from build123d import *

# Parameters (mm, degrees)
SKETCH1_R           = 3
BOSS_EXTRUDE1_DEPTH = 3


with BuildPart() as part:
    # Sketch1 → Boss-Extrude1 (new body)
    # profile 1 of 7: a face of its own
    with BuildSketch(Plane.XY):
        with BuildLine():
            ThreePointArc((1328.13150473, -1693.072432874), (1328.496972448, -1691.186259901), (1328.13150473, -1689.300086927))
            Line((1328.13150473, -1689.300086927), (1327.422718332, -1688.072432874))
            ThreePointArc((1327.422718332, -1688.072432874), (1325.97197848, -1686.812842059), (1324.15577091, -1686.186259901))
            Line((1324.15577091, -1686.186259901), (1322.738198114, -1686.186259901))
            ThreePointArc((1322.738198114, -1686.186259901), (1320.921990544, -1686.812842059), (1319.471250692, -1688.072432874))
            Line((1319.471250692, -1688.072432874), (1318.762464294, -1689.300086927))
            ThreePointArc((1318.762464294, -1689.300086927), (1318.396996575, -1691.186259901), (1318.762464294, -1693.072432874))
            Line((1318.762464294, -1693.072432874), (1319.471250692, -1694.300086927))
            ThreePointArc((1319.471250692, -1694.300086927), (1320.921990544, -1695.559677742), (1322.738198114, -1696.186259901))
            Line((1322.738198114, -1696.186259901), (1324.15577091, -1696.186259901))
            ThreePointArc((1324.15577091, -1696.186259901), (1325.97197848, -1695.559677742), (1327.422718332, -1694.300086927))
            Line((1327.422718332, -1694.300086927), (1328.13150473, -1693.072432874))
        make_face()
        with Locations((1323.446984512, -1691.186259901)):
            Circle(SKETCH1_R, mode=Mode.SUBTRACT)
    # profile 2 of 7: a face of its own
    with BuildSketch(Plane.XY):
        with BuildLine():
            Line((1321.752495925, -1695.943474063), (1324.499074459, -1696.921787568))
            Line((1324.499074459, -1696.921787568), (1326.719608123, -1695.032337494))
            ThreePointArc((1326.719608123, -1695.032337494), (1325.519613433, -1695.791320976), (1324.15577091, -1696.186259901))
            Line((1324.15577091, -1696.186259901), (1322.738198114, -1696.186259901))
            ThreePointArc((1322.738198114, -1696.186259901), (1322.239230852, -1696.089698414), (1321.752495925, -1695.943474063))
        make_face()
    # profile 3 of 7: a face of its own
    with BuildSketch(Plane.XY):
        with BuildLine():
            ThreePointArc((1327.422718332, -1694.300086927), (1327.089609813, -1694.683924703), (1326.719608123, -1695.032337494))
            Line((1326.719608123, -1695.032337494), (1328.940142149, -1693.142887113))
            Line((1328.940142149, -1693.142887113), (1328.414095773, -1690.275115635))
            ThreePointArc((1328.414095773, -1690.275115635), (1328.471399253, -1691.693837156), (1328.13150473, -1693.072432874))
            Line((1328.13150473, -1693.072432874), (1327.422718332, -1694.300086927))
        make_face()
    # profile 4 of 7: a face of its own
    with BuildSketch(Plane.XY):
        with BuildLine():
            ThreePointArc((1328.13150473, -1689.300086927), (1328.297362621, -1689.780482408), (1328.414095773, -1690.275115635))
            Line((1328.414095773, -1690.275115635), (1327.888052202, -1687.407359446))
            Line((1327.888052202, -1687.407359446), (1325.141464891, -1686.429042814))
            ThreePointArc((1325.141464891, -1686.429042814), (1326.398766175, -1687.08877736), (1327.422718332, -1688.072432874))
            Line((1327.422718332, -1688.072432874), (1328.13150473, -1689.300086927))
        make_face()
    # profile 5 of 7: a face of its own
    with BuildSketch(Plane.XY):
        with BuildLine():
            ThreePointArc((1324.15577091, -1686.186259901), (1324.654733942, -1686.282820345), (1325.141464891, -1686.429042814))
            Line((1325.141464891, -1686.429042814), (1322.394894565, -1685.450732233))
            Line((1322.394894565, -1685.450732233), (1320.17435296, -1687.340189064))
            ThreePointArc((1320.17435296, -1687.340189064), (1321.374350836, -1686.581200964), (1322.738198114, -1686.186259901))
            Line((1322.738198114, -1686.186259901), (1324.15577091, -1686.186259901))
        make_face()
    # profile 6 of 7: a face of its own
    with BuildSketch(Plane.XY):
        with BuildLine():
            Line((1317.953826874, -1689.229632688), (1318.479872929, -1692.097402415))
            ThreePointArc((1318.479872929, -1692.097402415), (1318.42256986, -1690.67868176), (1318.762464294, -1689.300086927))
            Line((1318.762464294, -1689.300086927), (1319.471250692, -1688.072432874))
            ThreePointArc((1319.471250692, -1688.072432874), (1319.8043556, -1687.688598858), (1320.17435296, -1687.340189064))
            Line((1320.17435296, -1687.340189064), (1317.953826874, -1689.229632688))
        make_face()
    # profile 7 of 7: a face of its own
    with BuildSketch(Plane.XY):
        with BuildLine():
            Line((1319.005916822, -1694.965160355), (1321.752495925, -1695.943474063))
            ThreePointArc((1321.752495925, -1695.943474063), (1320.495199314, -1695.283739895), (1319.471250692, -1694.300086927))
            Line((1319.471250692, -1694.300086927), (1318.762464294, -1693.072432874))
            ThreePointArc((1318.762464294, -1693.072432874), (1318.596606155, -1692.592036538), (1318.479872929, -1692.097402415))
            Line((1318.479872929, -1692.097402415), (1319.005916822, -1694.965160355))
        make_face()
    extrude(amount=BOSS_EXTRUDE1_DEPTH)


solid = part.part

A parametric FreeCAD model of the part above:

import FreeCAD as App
import Part
import Sketcher


def add_polygon(sketch, points):
    """Adds a closed chain of lines whose ends are joined by coincident constraints."""
    first, n = sketch.GeometryCount, len(points)
    for a, b in zip(points, points[1:] + points[:1]):
        sketch.addGeometry(Part.LineSegment(App.Vector(*a, 0), App.Vector(*b, 0)), False)
    for i in range(n):
        sketch.addConstraint(Sketcher.Constraint("Coincident", first + i, 2, first + (i + 1) % n, 1))

doc = App.newDocument("Part")
body = doc.addObject("PartDesign::Body", "Body")

sketch1 = body.newObject("Sketcher::SketchObject", "Sketch")
sketch1.AttachmentSupport = (doc.getObject("XY_Plane"), [""])
sketch1.MapMode = "FlatFace"
add_polygon(sketch1, [(1328.9, -1693.1), (1328.4, -1690.3), (1327.9, -1687.4), (1325.1, -1686.4), (1322.4, -1685.5), (1320.2, -1687.3), (1318, -1689.2), (1318.5, -1692.1), (1319, -1695), (1321.8, -1695.9), (1324.5, -1696.9), (1326.7, -1695)])
sketch1.addGeometry(Part.Circle(App.Vector(1323.4, -1691.2, 0), App.Vector(0, 0, 1), 3), False)
sketch1.addConstraint(Sketcher.Constraint("Parallel", 0, 1))
sketch1.addConstraint(Sketcher.Constraint("Parallel", 2, 3))
sketch1.addConstraint(Sketcher.Constraint("Parallel", 4, 5))
sketch1.addConstraint(Sketcher.Constraint("Parallel", 1, 6))
sketch1.addConstraint(Sketcher.Constraint("Parallel", 6, 7))
sketch1.addConstraint(Sketcher.Constraint("Parallel", 3, 8))
sketch1.addConstraint(Sketcher.Constraint("Parallel", 8, 9))
sketch1.addConstraint(Sketcher.Constraint("Parallel", 5, 10))
sketch1.addConstraint(Sketcher.Constraint("Parallel", 10, 11))
sketch1.addConstraint(Sketcher.Constraint("Equal", 0, 2))
sketch1.addConstraint(Sketcher.Constraint("Equal", 1, 3))
sketch1.addConstraint(Sketcher.Constraint("Equal", 2, 4))
sketch1.addConstraint(Sketcher.Constraint("Equal", 3, 5))
sketch1.addConstraint(Sketcher.Constraint("Equal", 0, 6))
sketch1.addConstraint(Sketcher.Constraint("Equal", 1, 7))
sketch1.addConstraint(Sketcher.Constraint("Equal", 8, 9))
sketch1.addConstraint(Sketcher.Constraint("Equal", 9, 10))
sketch1.addConstraint(Sketcher.Constraint("Diameter", 12, 6.0))
sketch1.addConstraint(Sketcher.Constraint("Distance", 5, 2.915602))
sketch1.addConstraint(Sketcher.Constraint("DistanceY", 12, 3, 1, 2, 3.7789))
sketch1.addConstraint(Sketcher.Constraint("DistanceX", 3, 2, 0, 2, 6.019201))
sketch1.addConstraint(Sketcher.Constraint("DistanceX", 4, 2, 1, 2, 7.713699))
sketch1.addConstraint(Sketcher.Constraint("DistanceY", 5, 2, 3, 2, 3.7789))
sketch1.addConstraint(Sketcher.Constraint("DistanceY", 7, 2, 12, 3, 3.7789))
sketch1.addConstraint(Sketcher.Constraint("DistanceY", 12, 3, -1, 1, 1691.18626))
sketch1.addConstraint(Sketcher.Constraint("DistanceX", -1, 1, 10, 2, 1326.719608))
sketch1.addConstraint(Sketcher.Constraint("DistanceX", 12, 3, 0, 2, 4.967111))
pad1 = body.newObject("PartDesign::Pad", "Pad")
pad1.Profile = sketch1
pad1.Length = 3

doc.recompute()
